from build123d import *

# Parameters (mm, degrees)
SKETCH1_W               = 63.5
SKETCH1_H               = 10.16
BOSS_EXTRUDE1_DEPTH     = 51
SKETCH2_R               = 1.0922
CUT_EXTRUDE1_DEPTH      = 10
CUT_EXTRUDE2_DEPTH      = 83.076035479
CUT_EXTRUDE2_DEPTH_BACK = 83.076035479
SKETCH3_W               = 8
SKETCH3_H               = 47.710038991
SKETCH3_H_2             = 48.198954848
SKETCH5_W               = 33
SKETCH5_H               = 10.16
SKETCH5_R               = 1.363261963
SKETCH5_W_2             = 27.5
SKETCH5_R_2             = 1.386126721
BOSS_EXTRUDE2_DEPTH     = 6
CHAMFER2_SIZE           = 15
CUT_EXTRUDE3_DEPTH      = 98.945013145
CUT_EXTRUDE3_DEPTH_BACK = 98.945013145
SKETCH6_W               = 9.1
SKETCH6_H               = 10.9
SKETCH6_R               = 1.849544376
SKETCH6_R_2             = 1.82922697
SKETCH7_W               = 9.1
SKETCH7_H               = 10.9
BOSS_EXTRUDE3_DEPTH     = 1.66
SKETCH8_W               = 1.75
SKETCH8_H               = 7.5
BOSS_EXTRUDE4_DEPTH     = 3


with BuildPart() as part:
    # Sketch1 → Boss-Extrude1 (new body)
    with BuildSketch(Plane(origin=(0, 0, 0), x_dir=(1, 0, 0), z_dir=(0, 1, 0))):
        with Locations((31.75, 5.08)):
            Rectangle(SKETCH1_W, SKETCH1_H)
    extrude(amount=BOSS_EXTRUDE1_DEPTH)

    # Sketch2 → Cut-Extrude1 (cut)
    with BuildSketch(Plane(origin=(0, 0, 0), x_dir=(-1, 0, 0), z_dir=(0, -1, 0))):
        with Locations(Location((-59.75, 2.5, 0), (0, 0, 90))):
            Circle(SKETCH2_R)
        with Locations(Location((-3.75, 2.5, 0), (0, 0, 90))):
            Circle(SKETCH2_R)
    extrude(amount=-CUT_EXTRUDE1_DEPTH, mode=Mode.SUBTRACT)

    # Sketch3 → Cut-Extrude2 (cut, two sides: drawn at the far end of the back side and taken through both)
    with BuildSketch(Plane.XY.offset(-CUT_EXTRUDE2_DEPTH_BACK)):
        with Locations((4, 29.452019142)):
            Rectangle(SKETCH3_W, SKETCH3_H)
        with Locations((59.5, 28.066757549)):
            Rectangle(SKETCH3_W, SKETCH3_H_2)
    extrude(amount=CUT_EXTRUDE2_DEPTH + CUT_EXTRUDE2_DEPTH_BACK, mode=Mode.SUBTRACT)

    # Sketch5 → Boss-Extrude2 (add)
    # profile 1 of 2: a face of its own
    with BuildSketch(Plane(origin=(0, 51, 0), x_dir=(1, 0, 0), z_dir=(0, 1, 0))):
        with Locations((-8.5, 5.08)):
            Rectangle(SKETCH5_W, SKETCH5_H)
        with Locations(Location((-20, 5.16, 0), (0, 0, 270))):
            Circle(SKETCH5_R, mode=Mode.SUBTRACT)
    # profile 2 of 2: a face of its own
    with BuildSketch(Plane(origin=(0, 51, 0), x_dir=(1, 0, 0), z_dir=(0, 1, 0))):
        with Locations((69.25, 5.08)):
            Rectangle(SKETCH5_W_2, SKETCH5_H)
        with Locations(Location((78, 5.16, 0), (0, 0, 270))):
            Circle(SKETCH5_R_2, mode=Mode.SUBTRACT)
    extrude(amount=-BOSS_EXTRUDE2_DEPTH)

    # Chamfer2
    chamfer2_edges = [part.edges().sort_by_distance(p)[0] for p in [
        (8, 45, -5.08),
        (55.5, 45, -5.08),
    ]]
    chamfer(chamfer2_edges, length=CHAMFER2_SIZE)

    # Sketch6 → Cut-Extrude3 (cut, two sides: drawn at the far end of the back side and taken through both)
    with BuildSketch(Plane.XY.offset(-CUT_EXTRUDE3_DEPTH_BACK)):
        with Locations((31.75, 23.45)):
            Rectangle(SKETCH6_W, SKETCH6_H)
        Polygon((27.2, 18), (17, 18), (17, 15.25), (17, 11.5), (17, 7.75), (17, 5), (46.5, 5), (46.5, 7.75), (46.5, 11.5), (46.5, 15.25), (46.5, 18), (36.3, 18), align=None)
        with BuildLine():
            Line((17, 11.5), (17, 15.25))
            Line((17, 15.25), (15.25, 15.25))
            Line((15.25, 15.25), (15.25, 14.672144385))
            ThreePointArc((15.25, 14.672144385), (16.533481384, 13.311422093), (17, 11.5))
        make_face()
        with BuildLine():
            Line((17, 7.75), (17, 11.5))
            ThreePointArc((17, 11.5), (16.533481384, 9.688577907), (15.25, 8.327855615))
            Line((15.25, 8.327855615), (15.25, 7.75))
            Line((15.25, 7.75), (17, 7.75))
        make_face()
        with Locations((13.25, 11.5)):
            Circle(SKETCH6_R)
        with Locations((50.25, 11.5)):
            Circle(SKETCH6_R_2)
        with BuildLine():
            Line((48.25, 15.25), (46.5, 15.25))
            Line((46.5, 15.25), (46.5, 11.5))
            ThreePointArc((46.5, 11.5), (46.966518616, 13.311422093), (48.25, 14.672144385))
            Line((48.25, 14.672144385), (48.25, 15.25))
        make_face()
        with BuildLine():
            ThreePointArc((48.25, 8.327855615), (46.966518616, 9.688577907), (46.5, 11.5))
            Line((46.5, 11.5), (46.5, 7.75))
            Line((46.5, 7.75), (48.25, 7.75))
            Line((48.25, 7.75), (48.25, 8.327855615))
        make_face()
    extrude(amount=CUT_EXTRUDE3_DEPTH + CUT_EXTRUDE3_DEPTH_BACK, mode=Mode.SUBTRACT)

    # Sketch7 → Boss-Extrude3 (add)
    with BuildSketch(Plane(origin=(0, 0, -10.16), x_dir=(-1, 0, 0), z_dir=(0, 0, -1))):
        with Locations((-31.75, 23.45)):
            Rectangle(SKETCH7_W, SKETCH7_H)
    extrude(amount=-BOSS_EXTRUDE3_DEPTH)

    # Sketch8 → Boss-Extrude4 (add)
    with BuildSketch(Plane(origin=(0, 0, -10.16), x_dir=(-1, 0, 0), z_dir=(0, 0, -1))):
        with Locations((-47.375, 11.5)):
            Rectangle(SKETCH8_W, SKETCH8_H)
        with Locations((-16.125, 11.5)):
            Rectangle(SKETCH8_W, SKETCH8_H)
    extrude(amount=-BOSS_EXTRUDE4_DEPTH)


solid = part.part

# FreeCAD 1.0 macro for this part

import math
import FreeCAD as App
import Part
import Sketcher
from FreeCAD import Vector


def edges_at(feature, points):
    """Names of the edges that pass closest to the given points."""
    edges = feature.Shape.Edges
    near = lambda p: min(range(len(edges)), key=lambda i: edges[i].distToShape(Part.Vertex(*p))[0])
    return sorted({f"Edge{near(p) + 1}" for p in points})

doc = App.newDocument("Part")
body = doc.addObject("PartDesign::Body", "Body")

# Sketch on XZ plane
sketch1 = doc.addObject("Sketcher::SketchObject", "Sketch")
body.addObject(sketch1)
sketch1.AttachmentSupport = (doc.XZ_Plane, [""])
sketch1.MapMode = "FlatFace"
sketch1.addGeometry([
    Part.LineSegment(Vector(0, -10, 0), Vector(0, 0, 0)),
    Part.LineSegment(Vector(0, 0, 0), Vector(64, 0, 0)),
    Part.LineSegment(Vector(64, 0, 0), Vector(64, -10, 0)),
    Part.LineSegment(Vector(64, -10, 0), Vector(0, -10, 0)),
], False)
sketch1.addConstraint([
    Sketcher.Constraint("Coincident", 0, 2, 1, 1),
    Sketcher.Constraint("Coincident", 1, 2, 2, 1),
    Sketcher.Constraint("Coincident", 2, 2, 3, 1),
    Sketcher.Constraint("Coincident", 3, 2, 0, 1),
    Sketcher.Constraint("Vertical", 0),
    Sketcher.Constraint("Horizontal", 1),
    Sketcher.Constraint("Vertical", 2),
    Sketcher.Constraint("Horizontal", 3),
    Sketcher.Constraint("Coincident", 0, 2, -1, 1),
    Sketcher.Constraint("DistanceX", 1, 1, 1, 2, 63.5),
    Sketcher.Constraint("DistanceY", 0, 1, 0, 2, 10.16),
])
pad1 = doc.addObject("PartDesign::Pad", "Pad")
body.addObject(pad1)
pad1.Profile = sketch1
pad1.Length = 51
pad1.Reversed = True

# Sketch on XZ plane
sketch2 = doc.addObject("Sketcher::SketchObject", "Sketch001")
body.addObject(sketch2)
sketch2.AttachmentSupport = (doc.XZ_Plane, [""])
sketch2.MapMode = "FlatFace"
sketch2.addGeometry([
    Part.Circle(Vector(59.8, -2.5, 0), Vector(0, 0, 1), 1.1),
    Part.Circle(Vector(3.8, -2.5, 0), Vector(0, 0, 1), 1.1),
], False)
sketch2.addConstraint([
    Sketcher.Constraint("Equal", 0, 1),
    Sketcher.Constraint("Horizontal", 0, 3, 1, 3),
    Sketcher.Constraint("DistanceX", 1, 3, 0, 3, 56.0),
    Sketcher.Constraint("Diameter", 0, 2.1844),
    Sketcher.Constraint("DistanceY", 0, 3, -1, 1, 2.5),
    Sketcher.Constraint("DistanceX", -1, 1, 0, 3, 59.75),
])
pocket1 = doc.addObject("PartDesign::Pocket", "Pocket")
body.addObject(pocket1)
pocket1.Profile = sketch2
pocket1.Length = 10

# Sketch on XY plane
sketch3 = doc.addObject("Sketcher::SketchObject", "Sketch002")
body.addObject(sketch3)
sketch3.AttachmentSupport = (doc.XY_Plane, [""])
sketch3.MapMode = "FlatFace"
sketch3.addGeometry([
    Part.LineSegment(Vector(0, 53, 0), Vector(0, 6, 0)),  # 0
    Part.LineSegment(Vector(0, 6, 0), Vector(8, 6, 0)),  # 1
    Part.LineSegment(Vector(8, 6, 0), Vector(8, 53, 0)),  # 2
    Part.LineSegment(Vector(8, 53, 0), Vector(0, 53, 0)),  # 3
    Part.LineSegment(Vector(56, 52, 0), Vector(56, 4, 0)),  # 4
    Part.LineSegment(Vector(56, 4, 0), Vector(64, 4, 0)),  # 5
    Part.LineSegment(Vector(64, 4, 0), Vector(64, 52, 0)),  # 6
    Part.LineSegment(Vector(64, 52, 0), Vector(56, 52, 0)),  # 7
], False)
sketch3.addConstraint([
    Sketcher.Constraint("Coincident", 0, 2, 1, 1),
    Sketcher.Constraint("Coincident", 1, 2, 2, 1),
    Sketcher.Constraint("Coincident", 2, 2, 3, 1),
    Sketcher.Constraint("Coincident", 3, 2, 0, 1),
    Sketcher.Constraint("Coincident", 4, 2, 5, 1),
    Sketcher.Constraint("Coincident", 5, 2, 6, 1),
    Sketcher.Constraint("Coincident", 6, 2, 7, 1),
    Sketcher.Constraint("Coincident", 7, 2, 4, 1),
    Sketcher.Constraint("Vertical", 0),
    Sketcher.Constraint("Horizontal", 1),
    Sketcher.Constraint("Vertical", 2),
    Sketcher.Constraint("Horizontal", 3),
    Sketcher.Constraint("Vertical", 4),
    Sketcher.Constraint("Horizontal", 5),
    Sketcher.Constraint("Vertical", 6),
    Sketcher.Constraint("Horizontal", 7),
    Sketcher.Constraint("PointOnObject", 0, 2, -2),
    Sketcher.Constraint("Equal", 3, 5),
    Sketcher.Constraint("DistanceX", 1, 1, 1, 2, 8.0),
    Sketcher.Constraint("DistanceX", -1, 1, 4, 2, 55.5),
    Sketcher.Constraint("DistanceY", -1, 1, 0, 2, 5.597),
    Sketcher.Constraint("DistanceY", 0, 2, 0, 1, 47.710039),
    Sketcher.Constraint("DistanceY", 4, 2, 4, 1, 48.198955),
    Sketcher.Constraint("DistanceY", -1, 1, 4, 2, 3.96728),
])
pocket2 = doc.addObject("PartDesign::Pocket", "Pocket001")
body.addObject(pocket2)
pocket2.Profile = sketch3
pocket2.Type = "ThroughAll"
pocket2.Midplane = True

# Sketch on XZ plane
sketch4 = doc.addObject("Sketcher::SketchObject", "Sketch003")
body.addObject(sketch4)
sketch4.AttachmentSupport = (doc.XZ_Plane, [""])
sketch4.MapMode = "FlatFace"
sketch4.AttachmentOffset = App.Placement(Vector(0, 0, -51), App.Rotation())
sketch4.addGeometry([
    Part.LineSegment(Vector(-25, -10.2, 0), Vector(-25, 0, 0)),  # 0
    Part.LineSegment(Vector(-25, 0, 0), Vector(8, 0, 0)),  # 1
    Part.LineSegment(Vector(8, 0, 0), Vector(8, -10.2, 0)),  # 2
    Part.LineSegment(Vector(8, -10.2, 0), Vector(-25, -10.2, 0)),  # 3
    Part.Circle(Vector(-20, -5.2, 0), Vector(0, 0, 1), 1.4),  # 4
    Part.LineSegment(Vector(55.5, -10.2, 0), Vector(55.5, 0, 0)),  # 5
    Part.LineSegment(Vector(55.5, 0, 0), Vector(83, 0, 0)),  # 6
    Part.LineSegment(Vector(83, 0, 0), Vector(83, -10.2, 0)),  # 7
    Part.LineSegment(Vector(83, -10.2, 0), Vector(55.5, -10.2, 0)),  # 8
    Part.Circle(Vector(78, -5.2, 0), Vector(0, 0, 1), 1.4),  # 9
], False)
sketch4.addConstraint([
    Sketcher.Constraint("Coincident", 0, 2, 1, 1),
    Sketcher.Constraint("Coincident", 1, 2, 2, 1),
    Sketcher.Constraint("Coincident", 2, 2, 3, 1),
    Sketcher.Constraint("Coincident", 3, 2, 0, 1),
    Sketcher.Constraint("Coincident", 5, 2, 6, 1),
    Sketcher.Constraint("Coincident", 6, 2, 7, 1),
    Sketcher.Constraint("Coincident", 7, 2, 8, 1),
    Sketcher.Constraint("Coincident", 8, 2, 5, 1),
    Sketcher.Constraint("Vertical", 0),
    Sketcher.Constraint("Horizontal", 1),
    Sketcher.Constraint("Vertical", 2),
    Sketcher.Constraint("Horizontal", 3),
    Sketcher.Constraint("Vertical", 5),
    Sketcher.Constraint("Horizontal", 6),
    Sketcher.Constraint("Vertical", 7),
    Sketcher.Constraint("Horizontal", 8),
    Sketcher.Constraint("PointOnObject", 0, 2, -1),
    Sketcher.Constraint("PointOnObject", 5, 2, -1),
    Sketcher.Constraint("Horizontal", 4, 3, 9, 3),
    Sketcher.Constraint("Horizontal", 3, 2, 7, 2),
    Sketcher.Constraint("DistanceX", 1, 1, 1, 2, 33.0),
    Sketcher.Constraint("DistanceX", 6, 1, 6, 2, 27.5),
    Sketcher.Constraint("DistanceX", 4, 3, -1, 1, 20.0),
    Sketcher.Constraint("DistanceX", -1, 1, 9, 3, 78.0),
    Sketcher.Constraint("DistanceX", 0, 2, -1, 1, 25.0),
    Sketcher.Constraint("DistanceX", -1, 1, 6, 2, 83.0),
    Sketcher.Constraint("DistanceY", 2, 2, 4, 3, 5.0),
    Sketcher.Constraint("DistanceY", 0, 1, 0, 2, 10.16),
    Sketcher.Constraint("Diameter", 4, 2.726524),
    Sketcher.Constraint("Diameter", 9, 2.772253),
])
pad2 = doc.addObject("PartDesign::Pad", "Pad001")
body.addObject(pad2)
pad2.Profile = sketch4
pad2.Length = 6
doc.recompute()

chamfer = doc.addObject("PartDesign::Chamfer", "Chamfer")
body.addObject(chamfer)
chamfer.Base = (pad2, edges_at(pad2, [(8, 45, -5.08), (55.5, 45, -5.08)]))
chamfer.Size = 15

# Sketch on XY plane
sketch5 = doc.addObject("Sketcher::SketchObject", "Sketch004")
body.addObject(sketch5)
sketch5.AttachmentSupport = (doc.XY_Plane, [""])
sketch5.MapMode = "FlatFace"
sketch5.addGeometry([
    Part.LineSegment(Vector(27.2, 28.9, 0), Vector(27.2, 18, 0)),  # 0
    Part.LineSegment(Vector(27.2, 18, 0), Vector(17, 18, 0)),  # 1
    Part.LineSegment(Vector(17, 18, 0), Vector(17, 15.2, 0)),  # 2
    Part.LineSegment(Vector(17, 15.2, 0), Vector(15.2, 15.2, 0)),  # 3
    Part.LineSegment(Vector(15.2, 15.2, 0), Vector(15.2, 14.7, 0)),  # 4
    Part.ArcOfCircle(Part.Circle(Vector(13.2, 11.5, 0), Vector(0, 0, 1), 3.8), math.radians(0), math.radians(58)),  # 5
    Part.ArcOfCircle(Part.Circle(Vector(13.2, 11.5, 0), Vector(0, 0, 1), 3.8), math.radians(-58), math.radians(0)),  # 6
    Part.LineSegment(Vector(15.2, 8.3, 0), Vector(15.2, 7.8, 0)),  # 7
    Part.LineSegment(Vector(15.2, 7.8, 0), Vector(17, 7.8, 0)),  # 8
    Part.LineSegment(Vector(17, 7.8, 0), Vector(17, 5, 0)),  # 9
    Part.LineSegment(Vector(17, 5, 0), Vector(46.5, 5, 0)),  # 10
    Part.LineSegment(Vector(46.5, 5, 0), Vector(46.5, 7.8, 0)),  # 11
    Part.LineSegment(Vector(46.5, 7.8, 0), Vector(48.2, 7.8, 0)),  # 12
    Part.LineSegment(Vector(48.2, 7.8, 0), Vector(48.2, 8.3, 0)),  # 13
    Part.ArcOfCircle(Part.Circle(Vector(50.3, 11.5, 0), Vector(0, 0, 1), 3.8), math.radians(-180), math.radians(-122)),  # 14
    Part.ArcOfCircle(Part.Circle(Vector(50.3, 11.5, 0), Vector(0, 0, 1), 3.8), math.radians(122), math.radians(180)),  # 15
    Part.LineSegment(Vector(48.2, 14.7, 0), Vector(48.2, 15.2, 0)),  # 16
    Part.LineSegment(Vector(48.2, 15.2, 0), Vector(46.5, 15.2, 0)),  # 17
    Part.LineSegment(Vector(46.5, 15.2, 0), Vector(46.5, 18, 0)),  # 18
    Part.LineSegment(Vector(46.5, 18, 0), Vector(36.3, 18, 0)),  # 19
    Part.LineSegment(Vector(36.3, 18, 0), Vector(36.3, 28.9, 0)),  # 20
    Part.LineSegment(Vector(36.3, 28.9, 0), Vector(27.2, 28.9, 0)),  # 21
    Part.Circle(Vector(13.2, 11.5, 0), Vector(0, 0, 1), 1.8),  # 22
    Part.Circle(Vector(50.2, 11.5, 0), Vector(0, 0, 1), 1.8),  # 23
], False)
sketch5.addConstraint([
    Sketcher.Constraint("Coincident", 0, 2, 1, 1),
    Sketcher.Constraint("Coincident", 1, 2, 2, 1),
    Sketcher.Constraint("Coincident", 2, 2, 3, 1),
    Sketcher.Constraint("Coincident", 3, 2, 4, 1),
    Sketcher.Constraint("Coincident", 4, 2, 5, 2),
    Sketcher.Constraint("Tangent", 5, 1, 6, 2),
    Sketcher.Constraint("Coincident", 6, 1, 7, 1),
    Sketcher.Constraint("Coincident", 7, 2, 8, 1),
    Sketcher.Constraint("Coincident", 8, 2, 9, 1),
    Sketcher.Constraint("Coincident", 9, 2, 10, 1),
    Sketcher.Constraint("Coincident", 10, 2, 11, 1),
    Sketcher.Constraint("Coincident", 11, 2, 12, 1),
    Sketcher.Constraint("Coincident", 12, 2, 13, 1),
    Sketcher.Constraint("Coincident", 13, 2, 14, 2),
    Sketcher.Constraint("Tangent", 14, 1, 15, 2),
    Sketcher.Constraint("Coincident", 15, 1, 16, 1),
    Sketcher.Constraint("Coincident", 16, 2, 17, 1),
    Sketcher.Constraint("Coincident", 17, 2, 18, 1),
    Sketcher.Constraint("Coincident", 18, 2, 19, 1),
    Sketcher.Constraint("Coincident", 19, 2, 20, 1),
    Sketcher.Constraint("Coincident", 20, 2, 21, 1),
    Sketcher.Constraint("Coincident", 21, 2, 0, 1),
    Sketcher.Constraint("Vertical", 0),
    Sketcher.Constraint("Horizontal", 1),
    Sketcher.Constraint("Vertical", 2),
    Sketcher.Constraint("Horizontal", 3),
    Sketcher.Constraint("Vertical", 4),
    Sketcher.Constraint("Vertical", 7),
    Sketcher.Constraint("Horizontal", 8),
    Sketcher.Constraint("Vertical", 9),
    Sketcher.Constraint("Horizontal", 10),
    Sketcher.Constraint("Vertical", 11),
    Sketcher.Constraint("Horizontal", 12),
    Sketcher.Constraint("Vertical", 13),
    Sketcher.Constraint("Vertical", 16),
    Sketcher.Constraint("Horizontal", 17),
    Sketcher.Constraint("Vertical", 18),
    Sketcher.Constraint("Horizontal", 19),
    Sketcher.Constraint("Vertical", 20),
    Sketcher.Constraint("Horizontal", 21),
    Sketcher.Constraint("Coincident", 22, 3, 5, 3),
    Sketcher.Constraint("Coincident", 23, 3, 14, 3),
    Sketcher.Constraint("Equal", 5, 6),
    Sketcher.Constraint("Equal", 6, 14),
    Sketcher.Constraint("Equal", 14, 15),
    Sketcher.Constraint("Horizontal", 6, 3, 14, 3),
    Sketcher.Constraint("Horizontal", 23, 3, 5, 1),
    Sketcher.Constraint("Horizontal", 8, 2, 11, 2),
    Sketcher.Constraint("Horizontal", 6, 1, 13, 2),
    Sketcher.Constraint("Horizontal", 5, 1, 14, 1),
    Sketcher.Constraint("Horizontal", 4, 2, 15, 1),
    Sketcher.Constraint("Horizontal", 3, 2, 16, 2),
    Sketcher.Constraint("Horizontal", 1, 2, 18, 2),
    Sketcher.Constraint("Vertical", 2, 2, 5, 1),
    Sketcher.Constraint("Vertical", 4, 2, 6, 1),
    Sketcher.Constraint("Vertical", 5, 1, 8, 2),
    Sketcher.Constraint("Vertical", 11, 2, 14, 1),
    Sketcher.Constraint("Vertical", 14, 1, 17, 2),
    Sketcher.Constraint("Equal", 1, 19),
    Sketcher.Constraint("Equal", 4, 7),
    Sketcher.Constraint("Equal", 2, 9),
    Sketcher.Constraint("Radius", 5, 3.75),
    Sketcher.Constraint("DistanceX", 1, 2, 1, 1, 10.2),
    Sketcher.Constraint("DistanceX", 10, 1, 10, 2, 29.5),
    Sketcher.Constraint("DistanceY", 0, 2, 0, 1, 10.9),
    Sketcher.Constraint("DistanceY", -1, 1, 0, 2, 18.0),
    Sketcher.Constraint("DistanceX", -1, 1, 1, 2, 17.0),
    Sketcher.Constraint("DistanceY", -1, 1, 9, 2, 5.0),
    Sketcher.Constraint("DistanceX", 6, 3, 3, 2, 2.0),
    Sketcher.Constraint("DistanceY", 2, 2, 2, 1, 2.75),
    Sketcher.Constraint("Diameter", 22, 3.699089),
    Sketcher.Constraint("Diameter", 23, 3.658454),
])
pocket3 = doc.addObject("PartDesign::Pocket", "Pocket002")
body.addObject(pocket3)
pocket3.Profile = sketch5
pocket3.Type = "ThroughAll"
pocket3.Midplane = True

# Sketch on XY plane
sketch6 = doc.addObject("Sketcher::SketchObject", "Sketch005")
body.addObject(sketch6)
sketch6.AttachmentSupport = (doc.XY_Plane, [""])
sketch6.MapMode = "FlatFace"
sketch6.AttachmentOffset = App.Placement(Vector(0, 0, -10.16), App.Rotation())
sketch6.addGeometry([
    Part.LineSegment(Vector(36, 29, 0), Vector(36, 18, 0)),
    Part.LineSegment(Vector(36, 18, 0), Vector(27, 18, 0)),
    Part.LineSegment(Vector(27, 18, 0), Vector(27, 29, 0)),
    Part.LineSegment(Vector(27, 29, 0), Vector(36, 29, 0)),
], False)
sketch6.addConstraint([
    Sketcher.Constraint("Coincident", 0, 2, 1, 1),
    Sketcher.Constraint("Coincident", 1, 2, 2, 1),
    Sketcher.Constraint("Coincident", 2, 2, 3, 1),
    Sketcher.Constraint("Coincident", 3, 2, 0, 1),
    Sketcher.Constraint("Vertical", 0),
    Sketcher.Constraint("Horizontal", 1),
    Sketcher.Constraint("Vertical", 2),
    Sketcher.Constraint("Horizontal", 3),
    Sketcher.Constraint("DistanceX", 1, 2, 1, 1, 9.1),
    Sketcher.Constraint("DistanceY", 0, 2, 0, 1, 10.9),
    Sketcher.Constraint("DistanceY", -1, 1, 0, 2, 18.0),
    Sketcher.Constraint("DistanceX", -1, 1, 0, 2, 36.3),
])
pad3 = doc.addObject("PartDesign::Pad", "Pad002")
body.addObject(pad3)
pad3.Profile = sketch6
pad3.Length = 1.66

# Sketch on XY plane
sketch7 = doc.addObject("Sketcher::SketchObject", "Sketch006")
body.addObject(sketch7)
sketch7.AttachmentSupport = (doc.XY_Plane, [""])
sketch7.MapMode = "FlatFace"
sketch7.AttachmentOffset = App.Placement(Vector(0, 0, -10.16), App.Rotation())
sketch7.addGeometry([
    Part.LineSegment(Vector(48.2, 15.2, 0), Vector(48.2, 7.8, 0)),  # 0
    Part.LineSegment(Vector(48.2, 7.8, 0), Vector(46.5, 7.8, 0)),  # 1
    Part.LineSegment(Vector(46.5, 7.8, 0), Vector(46.5, 15.2, 0)),  # 2
    Part.LineSegment(Vector(46.5, 15.2, 0), Vector(48.2, 15.2, 0)),  # 3
    Part.LineSegment(Vector(17, 15.2, 0), Vector(17, 7.8, 0)),  # 4
    Part.LineSegment(Vector(17, 7.8, 0), Vector(15.2, 7.8, 0)),  # 5
    Part.LineSegment(Vector(15.2, 7.8, 0), Vector(15.2, 15.2, 0)),  # 6
    Part.LineSegment(Vector(15.2, 15.2, 0), Vector(17, 15.2, 0)),  # 7
], False)
sketch7.addConstraint([
    Sketcher.Constraint("Coincident", 0, 2, 1, 1),
    Sketcher.Constraint("Coincident", 1, 2, 2, 1),
    Sketcher.Constraint("Coincident", 2, 2, 3, 1),
    Sketcher.Constraint("Coincident", 3, 2, 0, 1),
    Sketcher.Constraint("Coincident", 4, 2, 5, 1),
    Sketcher.Constraint("Coincident", 5, 2, 6, 1),
    Sketcher.Constraint("Coincident", 6, 2, 7, 1),
    Sketcher.Constraint("Coincident", 7, 2, 4, 1),
    Sketcher.Constraint("Vertical", 0),
    Sketcher.Constraint("Horizontal", 1),
    Sketcher.Constraint("Vertical", 2),
    Sketcher.Constraint("Horizontal", 3),
    Sketcher.Constraint("Vertical", 4),
    Sketcher.Constraint("Horizontal", 5),
    Sketcher.Constraint("Vertical", 6),
    Sketcher.Constraint("Horizontal", 7),
    Sketcher.Constraint("Horizontal", 1, 2, 4, 2),
    Sketcher.Constraint("Horizontal", 3, 2, 6, 2),
    Sketcher.Constraint("Equal", 3, 5),
    Sketcher.Constraint("DistanceY", 0, 2, 0, 1, 7.5),
    Sketcher.Constraint("DistanceX", -1, 1, 4, 2, 17.0),
    Sketcher.Constraint("DistanceX", 5, 2, 0, 2, 33.0),
    Sketcher.Constraint("DistanceX", 1, 2, 1, 1, 1.75),
    Sketcher.Constraint("DistanceY", -1, 1, 0, 2, 7.75),
])
pad4 = doc.addObject("PartDesign::Pad", "Pad003")
body.addObject(pad4)
pad4.Profile = sketch7
pad4.Length = 3

doc.recompute()
